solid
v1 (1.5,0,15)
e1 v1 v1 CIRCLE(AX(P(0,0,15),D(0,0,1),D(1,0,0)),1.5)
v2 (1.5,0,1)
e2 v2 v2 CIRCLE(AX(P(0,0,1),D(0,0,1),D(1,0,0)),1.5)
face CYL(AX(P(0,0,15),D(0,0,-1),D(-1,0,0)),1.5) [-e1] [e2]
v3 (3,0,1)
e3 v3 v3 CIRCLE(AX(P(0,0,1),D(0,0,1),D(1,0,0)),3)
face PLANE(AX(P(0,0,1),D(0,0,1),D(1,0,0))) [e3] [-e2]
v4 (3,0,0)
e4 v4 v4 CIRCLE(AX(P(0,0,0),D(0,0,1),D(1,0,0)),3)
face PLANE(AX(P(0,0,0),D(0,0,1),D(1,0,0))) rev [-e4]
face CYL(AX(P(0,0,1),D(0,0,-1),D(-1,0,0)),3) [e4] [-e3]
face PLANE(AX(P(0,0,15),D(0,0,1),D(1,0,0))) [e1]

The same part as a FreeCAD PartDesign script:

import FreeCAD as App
import Part
import Sketcher

V = App.Vector

doc = App.newDocument("Part")
body = doc.addObject("PartDesign::Body", "Body")

# Sketch on XY plane
sketch1 = body.newObject("Sketcher::SketchObject", "Sketch")
sketch1.AttachmentSupport = (doc.getObject("XY_Plane"), [""])
sketch1.MapMode = "FlatFace"
sketch1.addGeometry(Part.Circle(V(0, 0, 0), V(0, 0, 1), 3), False)
sketch1.addConstraint([
    Sketcher.Constraint("Coincident", 0, 3, -1, 1),
    Sketcher.Constraint("Diameter", 0, 6.0),
])
pad1 = body.newObject("PartDesign::Pad", "Pad")
pad1.Profile = sketch1
pad1.Length = 1

# Sketch on XY plane
sketch2 = body.newObject("Sketcher::SketchObject", "Sketch001")
sketch2.AttachmentSupport = (doc.getObject("XY_Plane"), [""])
sketch2.MapMode = "FlatFace"
sketch2.AttachmentOffset = App.Placement(V(0, 0, 1), App.Rotation())
sketch2.addGeometry(Part.Circle(V(0, 0, 0), V(0, 0, 1), 1.5), False)
sketch2.addConstraint([
    Sketcher.Constraint("Coincident", 0, 3, -1, 1),
    Sketcher.Constraint("Diameter", 0, 3.0),
])
pad2 = body.newObject("PartDesign::Pad", "Pad001")
pad2.Profile = sketch2
pad2.Length = 14

doc.recompute()
